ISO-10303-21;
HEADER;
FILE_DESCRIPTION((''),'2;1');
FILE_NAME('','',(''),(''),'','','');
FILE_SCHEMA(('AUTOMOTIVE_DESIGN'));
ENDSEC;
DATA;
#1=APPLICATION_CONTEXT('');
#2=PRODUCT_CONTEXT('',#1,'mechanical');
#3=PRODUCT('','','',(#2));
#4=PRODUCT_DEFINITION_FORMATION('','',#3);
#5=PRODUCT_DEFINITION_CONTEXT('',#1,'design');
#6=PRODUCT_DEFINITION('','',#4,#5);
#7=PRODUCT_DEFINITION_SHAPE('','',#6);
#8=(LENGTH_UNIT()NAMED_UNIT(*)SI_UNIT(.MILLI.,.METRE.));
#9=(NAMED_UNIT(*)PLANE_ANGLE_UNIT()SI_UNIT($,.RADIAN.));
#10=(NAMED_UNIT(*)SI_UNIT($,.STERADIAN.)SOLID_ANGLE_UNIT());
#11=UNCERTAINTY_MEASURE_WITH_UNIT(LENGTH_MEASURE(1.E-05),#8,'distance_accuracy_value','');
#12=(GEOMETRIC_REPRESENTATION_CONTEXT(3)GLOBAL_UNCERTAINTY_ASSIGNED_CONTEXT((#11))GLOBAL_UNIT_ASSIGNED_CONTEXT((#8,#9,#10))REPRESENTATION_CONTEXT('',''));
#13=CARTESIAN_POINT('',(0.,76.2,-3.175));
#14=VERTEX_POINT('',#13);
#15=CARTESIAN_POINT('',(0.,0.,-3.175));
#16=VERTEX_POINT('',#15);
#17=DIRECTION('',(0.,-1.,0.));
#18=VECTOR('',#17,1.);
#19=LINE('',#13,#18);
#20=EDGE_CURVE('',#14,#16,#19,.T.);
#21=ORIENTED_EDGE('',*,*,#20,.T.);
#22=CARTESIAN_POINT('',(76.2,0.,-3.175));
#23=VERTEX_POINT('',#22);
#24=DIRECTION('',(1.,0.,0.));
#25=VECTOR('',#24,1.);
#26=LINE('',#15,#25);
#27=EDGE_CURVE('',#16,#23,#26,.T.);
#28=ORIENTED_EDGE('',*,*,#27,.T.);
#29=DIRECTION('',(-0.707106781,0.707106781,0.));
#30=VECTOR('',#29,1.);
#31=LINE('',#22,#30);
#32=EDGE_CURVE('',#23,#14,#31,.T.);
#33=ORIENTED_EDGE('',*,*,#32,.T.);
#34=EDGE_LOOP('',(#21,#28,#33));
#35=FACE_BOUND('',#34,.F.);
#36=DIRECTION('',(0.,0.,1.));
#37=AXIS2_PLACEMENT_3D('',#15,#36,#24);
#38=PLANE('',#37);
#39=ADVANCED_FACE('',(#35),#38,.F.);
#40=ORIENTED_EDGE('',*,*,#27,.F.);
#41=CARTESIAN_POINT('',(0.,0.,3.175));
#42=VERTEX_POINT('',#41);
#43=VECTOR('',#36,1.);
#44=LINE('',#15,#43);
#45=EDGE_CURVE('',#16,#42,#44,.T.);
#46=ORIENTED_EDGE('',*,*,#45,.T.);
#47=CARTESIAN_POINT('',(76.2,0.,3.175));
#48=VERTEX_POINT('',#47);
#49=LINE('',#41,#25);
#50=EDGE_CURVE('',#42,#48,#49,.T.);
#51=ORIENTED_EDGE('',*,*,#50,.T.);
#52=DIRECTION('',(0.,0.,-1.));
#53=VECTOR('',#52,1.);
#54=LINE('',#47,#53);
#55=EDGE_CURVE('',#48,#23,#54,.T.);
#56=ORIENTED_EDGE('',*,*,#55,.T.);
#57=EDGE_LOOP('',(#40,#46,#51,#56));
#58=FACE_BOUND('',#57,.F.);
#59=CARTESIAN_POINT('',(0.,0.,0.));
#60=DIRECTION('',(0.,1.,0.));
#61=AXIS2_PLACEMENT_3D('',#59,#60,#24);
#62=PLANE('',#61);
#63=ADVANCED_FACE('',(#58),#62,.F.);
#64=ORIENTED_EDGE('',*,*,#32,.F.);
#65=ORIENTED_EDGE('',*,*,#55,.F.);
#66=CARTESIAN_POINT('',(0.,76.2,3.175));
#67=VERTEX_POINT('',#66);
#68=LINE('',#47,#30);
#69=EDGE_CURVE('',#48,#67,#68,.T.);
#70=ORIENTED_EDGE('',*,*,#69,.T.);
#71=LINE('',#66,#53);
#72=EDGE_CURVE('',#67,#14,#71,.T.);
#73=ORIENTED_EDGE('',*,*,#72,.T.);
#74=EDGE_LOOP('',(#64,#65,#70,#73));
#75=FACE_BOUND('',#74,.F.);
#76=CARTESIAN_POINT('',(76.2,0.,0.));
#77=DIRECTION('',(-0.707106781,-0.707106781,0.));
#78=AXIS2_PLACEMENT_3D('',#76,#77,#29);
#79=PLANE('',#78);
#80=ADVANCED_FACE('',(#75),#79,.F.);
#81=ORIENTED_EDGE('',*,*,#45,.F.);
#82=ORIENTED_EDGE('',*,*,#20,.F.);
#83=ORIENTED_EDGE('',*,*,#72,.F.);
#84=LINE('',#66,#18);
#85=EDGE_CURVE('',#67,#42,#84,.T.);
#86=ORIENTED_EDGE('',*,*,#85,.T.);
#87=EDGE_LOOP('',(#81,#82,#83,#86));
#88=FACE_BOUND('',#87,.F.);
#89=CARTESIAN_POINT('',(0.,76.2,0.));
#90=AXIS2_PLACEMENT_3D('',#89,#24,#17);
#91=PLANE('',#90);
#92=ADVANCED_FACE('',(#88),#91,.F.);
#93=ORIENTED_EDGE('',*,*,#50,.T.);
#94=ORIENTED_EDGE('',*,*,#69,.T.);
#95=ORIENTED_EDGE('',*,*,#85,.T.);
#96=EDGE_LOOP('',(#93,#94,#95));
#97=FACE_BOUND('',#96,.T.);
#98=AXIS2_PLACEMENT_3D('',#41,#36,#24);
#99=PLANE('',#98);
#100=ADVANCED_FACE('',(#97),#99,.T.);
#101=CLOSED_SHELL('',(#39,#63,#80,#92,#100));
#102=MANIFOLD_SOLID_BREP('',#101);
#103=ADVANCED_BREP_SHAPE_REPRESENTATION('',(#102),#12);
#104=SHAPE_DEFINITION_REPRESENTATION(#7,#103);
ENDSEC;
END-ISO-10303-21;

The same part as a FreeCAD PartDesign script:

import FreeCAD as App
import Part
import Sketcher

V = App.Vector
Q = App.Units.Quantity

doc = App.newDocument("Part")
body = doc.addObject("PartDesign::Body", "Body")

sketch1 = doc.addObject("Sketcher::SketchObject", "Sketch")
body.addObject(sketch1)
sketch1.AttachmentSupport = (doc.XY_Plane, [""])
sketch1.MapMode = "FlatFace"
sketch1.addGeometry(Part.LineSegment(V(0, 76, 0), V(0, 0, 0)), False)
sketch1.addGeometry(Part.LineSegment(V(0, 0, 0), V(76, 0, 0)), False)
sketch1.addGeometry(Part.LineSegment(V(76, 0, 0), V(0, 76, 0)), False)
sketch1.addConstraint(Sketcher.Constraint("Coincident", 0, 2, 1, 1))
sketch1.addConstraint(Sketcher.Constraint("Coincident", 1, 2, 2, 1))
sketch1.addConstraint(Sketcher.Constraint("Coincident", 2, 2, 0, 1))
sketch1.addConstraint(Sketcher.Constraint("Vertical", 0))
sketch1.addConstraint(Sketcher.Constraint("Horizontal", 1))
sketch1.addConstraint(Sketcher.Constraint("Coincident", 0, 2, -1, 1))
sketch1.addConstraint(Sketcher.Constraint("Equal", 1, 0))
sketch1.addConstraint(Sketcher.Constraint("DistanceX", 1, 1, 1, 2, Q("3 in")))
pad1 = doc.addObject("PartDesign::Pad", "Pad")
body.addObject(pad1)
pad1.Profile = sketch1
pad1.Length = Q("0.25 in")
pad1.Midplane = True

doc.recompute()
